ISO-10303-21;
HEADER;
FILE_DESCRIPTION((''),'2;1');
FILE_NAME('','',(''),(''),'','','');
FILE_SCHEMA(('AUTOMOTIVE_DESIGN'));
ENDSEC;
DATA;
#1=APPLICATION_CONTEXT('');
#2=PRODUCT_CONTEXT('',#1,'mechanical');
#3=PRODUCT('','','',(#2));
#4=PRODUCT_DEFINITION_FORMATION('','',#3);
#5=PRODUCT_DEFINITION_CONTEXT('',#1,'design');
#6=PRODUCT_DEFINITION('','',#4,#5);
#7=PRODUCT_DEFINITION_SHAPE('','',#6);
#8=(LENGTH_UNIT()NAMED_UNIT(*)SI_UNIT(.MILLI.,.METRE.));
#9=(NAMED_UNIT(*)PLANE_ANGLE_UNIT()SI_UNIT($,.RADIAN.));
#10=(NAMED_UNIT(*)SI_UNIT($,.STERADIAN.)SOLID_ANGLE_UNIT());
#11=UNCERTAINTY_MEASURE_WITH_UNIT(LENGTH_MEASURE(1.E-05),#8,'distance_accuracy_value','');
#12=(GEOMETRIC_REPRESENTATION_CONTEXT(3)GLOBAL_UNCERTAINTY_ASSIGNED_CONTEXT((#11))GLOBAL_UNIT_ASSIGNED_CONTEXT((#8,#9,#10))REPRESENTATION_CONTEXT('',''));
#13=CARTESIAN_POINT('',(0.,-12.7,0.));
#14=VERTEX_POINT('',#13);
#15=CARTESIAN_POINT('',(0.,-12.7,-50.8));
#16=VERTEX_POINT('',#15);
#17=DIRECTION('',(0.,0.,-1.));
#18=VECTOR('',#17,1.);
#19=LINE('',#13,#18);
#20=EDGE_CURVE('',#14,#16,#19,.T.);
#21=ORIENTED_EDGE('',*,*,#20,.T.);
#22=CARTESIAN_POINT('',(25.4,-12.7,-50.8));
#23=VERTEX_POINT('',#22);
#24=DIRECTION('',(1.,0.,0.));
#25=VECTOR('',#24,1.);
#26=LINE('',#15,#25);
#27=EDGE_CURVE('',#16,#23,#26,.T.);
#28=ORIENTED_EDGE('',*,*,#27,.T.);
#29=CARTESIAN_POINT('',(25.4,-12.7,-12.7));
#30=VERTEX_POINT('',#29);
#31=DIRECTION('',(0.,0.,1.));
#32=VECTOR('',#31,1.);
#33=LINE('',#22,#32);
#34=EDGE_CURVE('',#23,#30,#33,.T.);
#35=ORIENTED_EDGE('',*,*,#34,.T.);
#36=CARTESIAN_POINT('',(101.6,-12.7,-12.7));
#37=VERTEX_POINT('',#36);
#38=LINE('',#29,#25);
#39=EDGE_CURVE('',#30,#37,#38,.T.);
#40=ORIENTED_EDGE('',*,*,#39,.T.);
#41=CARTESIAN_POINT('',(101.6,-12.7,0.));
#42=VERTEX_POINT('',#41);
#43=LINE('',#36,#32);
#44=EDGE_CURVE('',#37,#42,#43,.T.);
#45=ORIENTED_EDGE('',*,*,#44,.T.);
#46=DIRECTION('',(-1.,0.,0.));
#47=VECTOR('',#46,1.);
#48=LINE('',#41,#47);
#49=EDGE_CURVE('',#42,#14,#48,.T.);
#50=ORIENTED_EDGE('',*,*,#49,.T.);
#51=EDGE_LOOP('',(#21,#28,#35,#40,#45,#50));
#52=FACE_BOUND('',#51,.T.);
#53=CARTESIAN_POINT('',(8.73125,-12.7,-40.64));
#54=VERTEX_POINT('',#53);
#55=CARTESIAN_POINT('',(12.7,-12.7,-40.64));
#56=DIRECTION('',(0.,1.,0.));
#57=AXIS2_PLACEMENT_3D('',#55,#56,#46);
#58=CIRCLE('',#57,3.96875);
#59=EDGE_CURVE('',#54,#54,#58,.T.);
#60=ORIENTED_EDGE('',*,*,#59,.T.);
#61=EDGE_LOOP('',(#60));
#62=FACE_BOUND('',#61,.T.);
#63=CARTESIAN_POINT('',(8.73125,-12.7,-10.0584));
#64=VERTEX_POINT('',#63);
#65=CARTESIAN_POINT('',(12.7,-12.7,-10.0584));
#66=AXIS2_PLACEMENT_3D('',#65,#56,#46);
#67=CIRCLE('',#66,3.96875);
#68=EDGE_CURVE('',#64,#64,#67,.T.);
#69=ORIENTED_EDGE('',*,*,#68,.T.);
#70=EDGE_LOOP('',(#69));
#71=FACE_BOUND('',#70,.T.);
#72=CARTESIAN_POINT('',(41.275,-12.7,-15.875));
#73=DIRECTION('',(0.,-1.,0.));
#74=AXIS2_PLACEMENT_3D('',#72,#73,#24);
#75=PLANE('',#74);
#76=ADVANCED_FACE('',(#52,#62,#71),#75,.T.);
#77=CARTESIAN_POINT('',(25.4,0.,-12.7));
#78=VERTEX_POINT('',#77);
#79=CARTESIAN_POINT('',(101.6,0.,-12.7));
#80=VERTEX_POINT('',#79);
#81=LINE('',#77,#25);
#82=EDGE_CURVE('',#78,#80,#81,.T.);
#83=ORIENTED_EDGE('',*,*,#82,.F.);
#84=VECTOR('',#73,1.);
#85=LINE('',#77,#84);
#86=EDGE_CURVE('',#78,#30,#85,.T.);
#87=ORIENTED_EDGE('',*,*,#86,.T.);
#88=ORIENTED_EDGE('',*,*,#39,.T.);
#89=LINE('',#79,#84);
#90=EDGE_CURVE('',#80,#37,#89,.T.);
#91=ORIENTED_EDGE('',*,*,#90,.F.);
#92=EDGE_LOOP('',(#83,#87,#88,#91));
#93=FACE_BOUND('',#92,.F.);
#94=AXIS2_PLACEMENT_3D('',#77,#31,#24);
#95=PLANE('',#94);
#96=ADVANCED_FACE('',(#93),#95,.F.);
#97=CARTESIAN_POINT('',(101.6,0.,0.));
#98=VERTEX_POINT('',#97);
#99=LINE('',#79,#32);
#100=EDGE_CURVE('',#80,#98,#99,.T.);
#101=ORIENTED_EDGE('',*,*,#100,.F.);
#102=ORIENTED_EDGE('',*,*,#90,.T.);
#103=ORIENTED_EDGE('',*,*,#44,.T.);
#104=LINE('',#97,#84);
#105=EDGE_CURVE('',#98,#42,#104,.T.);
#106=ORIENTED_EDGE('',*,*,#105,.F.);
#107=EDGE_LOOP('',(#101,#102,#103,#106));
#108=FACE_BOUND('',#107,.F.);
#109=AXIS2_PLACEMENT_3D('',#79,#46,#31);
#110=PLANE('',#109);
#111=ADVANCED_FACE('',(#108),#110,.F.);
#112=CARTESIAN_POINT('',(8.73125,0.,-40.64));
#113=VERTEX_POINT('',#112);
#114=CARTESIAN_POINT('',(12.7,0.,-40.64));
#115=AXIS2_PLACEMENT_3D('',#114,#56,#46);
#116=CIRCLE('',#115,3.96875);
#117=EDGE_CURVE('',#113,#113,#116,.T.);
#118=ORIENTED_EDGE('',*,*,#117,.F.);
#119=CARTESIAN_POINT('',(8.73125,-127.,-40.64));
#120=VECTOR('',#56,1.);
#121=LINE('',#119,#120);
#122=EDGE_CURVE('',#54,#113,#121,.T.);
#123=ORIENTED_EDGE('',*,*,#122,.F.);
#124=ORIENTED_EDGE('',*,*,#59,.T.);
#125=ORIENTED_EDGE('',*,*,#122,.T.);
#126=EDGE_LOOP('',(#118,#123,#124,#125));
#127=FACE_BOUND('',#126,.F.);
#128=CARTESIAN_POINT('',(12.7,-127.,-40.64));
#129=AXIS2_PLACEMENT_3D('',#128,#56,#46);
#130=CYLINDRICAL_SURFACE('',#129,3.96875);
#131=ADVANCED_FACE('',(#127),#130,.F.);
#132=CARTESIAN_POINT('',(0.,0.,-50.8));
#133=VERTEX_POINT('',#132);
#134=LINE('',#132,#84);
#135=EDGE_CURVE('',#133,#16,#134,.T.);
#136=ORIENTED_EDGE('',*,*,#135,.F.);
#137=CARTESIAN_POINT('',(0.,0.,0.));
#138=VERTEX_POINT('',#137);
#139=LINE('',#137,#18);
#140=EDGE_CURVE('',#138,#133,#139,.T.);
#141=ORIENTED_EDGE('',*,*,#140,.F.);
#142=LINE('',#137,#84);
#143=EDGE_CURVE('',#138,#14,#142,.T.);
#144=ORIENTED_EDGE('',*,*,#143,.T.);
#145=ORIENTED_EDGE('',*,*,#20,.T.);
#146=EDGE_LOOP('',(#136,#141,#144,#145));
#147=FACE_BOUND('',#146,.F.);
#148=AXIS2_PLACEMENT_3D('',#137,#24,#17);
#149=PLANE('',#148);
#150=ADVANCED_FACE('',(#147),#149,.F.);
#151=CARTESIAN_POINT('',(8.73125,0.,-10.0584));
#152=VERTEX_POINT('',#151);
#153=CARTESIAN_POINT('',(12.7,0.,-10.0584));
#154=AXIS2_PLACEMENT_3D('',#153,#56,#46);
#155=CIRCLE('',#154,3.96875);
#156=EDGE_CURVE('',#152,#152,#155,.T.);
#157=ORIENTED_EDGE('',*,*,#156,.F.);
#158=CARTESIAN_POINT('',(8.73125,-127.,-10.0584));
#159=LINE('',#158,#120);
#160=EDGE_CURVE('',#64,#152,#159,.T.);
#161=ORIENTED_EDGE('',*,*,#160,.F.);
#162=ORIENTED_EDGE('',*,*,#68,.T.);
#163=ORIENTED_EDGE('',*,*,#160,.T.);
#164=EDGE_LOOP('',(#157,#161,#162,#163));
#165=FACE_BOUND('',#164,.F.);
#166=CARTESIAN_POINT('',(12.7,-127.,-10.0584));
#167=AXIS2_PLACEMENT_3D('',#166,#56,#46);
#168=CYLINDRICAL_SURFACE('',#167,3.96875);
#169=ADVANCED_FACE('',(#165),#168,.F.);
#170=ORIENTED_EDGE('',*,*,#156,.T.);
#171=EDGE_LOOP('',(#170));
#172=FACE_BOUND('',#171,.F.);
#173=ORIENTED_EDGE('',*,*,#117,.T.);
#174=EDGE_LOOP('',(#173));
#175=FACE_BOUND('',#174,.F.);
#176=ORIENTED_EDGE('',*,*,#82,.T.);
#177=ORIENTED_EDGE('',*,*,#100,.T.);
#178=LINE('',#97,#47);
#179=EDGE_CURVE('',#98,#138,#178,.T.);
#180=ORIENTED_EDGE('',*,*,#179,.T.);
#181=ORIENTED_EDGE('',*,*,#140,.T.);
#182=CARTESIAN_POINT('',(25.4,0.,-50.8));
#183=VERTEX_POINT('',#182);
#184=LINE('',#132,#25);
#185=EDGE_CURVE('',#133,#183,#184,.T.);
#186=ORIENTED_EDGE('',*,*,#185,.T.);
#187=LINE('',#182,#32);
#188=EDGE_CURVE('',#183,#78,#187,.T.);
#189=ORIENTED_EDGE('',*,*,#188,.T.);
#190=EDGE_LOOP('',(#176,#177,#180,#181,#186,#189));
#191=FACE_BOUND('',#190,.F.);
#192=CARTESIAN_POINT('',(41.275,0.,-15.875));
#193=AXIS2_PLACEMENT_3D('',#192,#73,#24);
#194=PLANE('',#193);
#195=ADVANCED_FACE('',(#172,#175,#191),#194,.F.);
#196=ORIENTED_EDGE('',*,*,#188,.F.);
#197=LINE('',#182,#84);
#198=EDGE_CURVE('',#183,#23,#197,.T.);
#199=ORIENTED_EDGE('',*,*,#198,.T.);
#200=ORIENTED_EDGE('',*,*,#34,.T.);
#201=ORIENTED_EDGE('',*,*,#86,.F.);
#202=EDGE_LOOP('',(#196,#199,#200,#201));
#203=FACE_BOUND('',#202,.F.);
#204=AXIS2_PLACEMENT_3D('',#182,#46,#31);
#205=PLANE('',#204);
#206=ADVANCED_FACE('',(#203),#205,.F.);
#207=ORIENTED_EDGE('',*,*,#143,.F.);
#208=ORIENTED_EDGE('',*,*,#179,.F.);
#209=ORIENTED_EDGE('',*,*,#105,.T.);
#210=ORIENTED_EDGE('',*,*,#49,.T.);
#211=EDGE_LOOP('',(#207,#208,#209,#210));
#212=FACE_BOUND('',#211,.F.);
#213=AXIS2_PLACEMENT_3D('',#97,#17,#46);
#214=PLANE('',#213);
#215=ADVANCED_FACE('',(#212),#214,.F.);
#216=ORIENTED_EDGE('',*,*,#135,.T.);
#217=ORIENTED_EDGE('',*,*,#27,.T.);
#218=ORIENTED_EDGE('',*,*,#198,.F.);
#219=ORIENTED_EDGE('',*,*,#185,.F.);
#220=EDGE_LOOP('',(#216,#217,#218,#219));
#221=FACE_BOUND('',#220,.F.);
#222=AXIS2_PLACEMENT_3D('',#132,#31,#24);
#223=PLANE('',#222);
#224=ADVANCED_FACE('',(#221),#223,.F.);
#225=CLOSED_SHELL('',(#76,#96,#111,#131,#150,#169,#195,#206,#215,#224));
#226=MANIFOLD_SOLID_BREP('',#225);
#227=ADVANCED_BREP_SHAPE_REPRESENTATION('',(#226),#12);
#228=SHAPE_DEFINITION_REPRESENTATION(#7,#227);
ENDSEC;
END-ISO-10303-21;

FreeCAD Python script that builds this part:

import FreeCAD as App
import Part
import Sketcher
from FreeCAD import Vector
Q = App.Units.Quantity


def add_polygon(sketch, points):
    """Adds a closed chain of lines whose ends are joined by coincident constraints."""
    first, n = sketch.GeometryCount, len(points)
    for a, b in zip(points, points[1:] + points[:1]):
        sketch.addGeometry(Part.LineSegment(App.Vector(*a, 0), App.Vector(*b, 0)), False)
    for i in range(n):
        sketch.addConstraint(Sketcher.Constraint("Coincident", first + i, 2, first + (i + 1) % n, 1))

doc = App.newDocument("Part")
params = doc.addObject("Spreadsheet::Sheet", "Params")
for row, (alias, value) in enumerate([
    ("sketch1_width", "4 in"),
    ("sketch1_width2", "1 in"),
    ("sketch1_height", "2 in"),
    ("sketch1_height2", "1.5 in"),
    ("pad1_length", "0.5 in"),
    ("sketch2_diameter", "0.3125 in"),
    ("hole_diameter", "0.3125 in"),
], start=1):
    params.set(f"A{row}", alias)
    params.set(f"B{row}", "=" + value)
    params.setAlias(f"B{row}", alias)

body = doc.addObject("PartDesign::Body", "Body")

# Sketch on XZ plane
sketch1 = doc.addObject("Sketcher::SketchObject", "Sketch")
body.addObject(sketch1)
sketch1.AttachmentSupport = (doc.XZ_Plane, [""])
sketch1.MapMode = "FlatFace"
add_polygon(sketch1, [(102, 0), (0, 0), (0, -51), (25, -51), (25, -13), (102, -13)])  # lines 0-5
sketch1.addConstraint([
    Sketcher.Constraint("Horizontal", 0),
    Sketcher.Constraint("Vertical", 1),
    Sketcher.Constraint("Horizontal", 2),
    Sketcher.Constraint("Vertical", 3),
    Sketcher.Constraint("Horizontal", 4),
    Sketcher.Constraint("Vertical", 5),
    Sketcher.Constraint("Coincident", 0, 2, -1, 1),
    Sketcher.Constraint("DistanceX", 0, 2, 0, 1, Q("4 in")),
    Sketcher.Constraint("DistanceX", 2, 1, 2, 2, Q("1 in")),
    Sketcher.Constraint("DistanceY", 1, 2, 1, 1, Q("2 in")),
    Sketcher.Constraint("DistanceY", 3, 1, 3, 2, Q("1.5 in")),
])
sketch1.setExpression("Constraints[13]", "Params.sketch1_width")
sketch1.setExpression("Constraints[14]", "Params.sketch1_width2")
sketch1.setExpression("Constraints[15]", "Params.sketch1_height")
sketch1.setExpression("Constraints[16]", "Params.sketch1_height2")
pad1 = doc.addObject("PartDesign::Pad", "Pad")
body.addObject(pad1)
pad1.Profile = sketch1
pad1.setExpression("Length", "Params.pad1_length")

# Sketch on XZ plane
sketch2 = doc.addObject("Sketcher::SketchObject", "Sketch001")
body.addObject(sketch2)
sketch2.AttachmentSupport = (doc.XZ_Plane, [""])
sketch2.MapMode = "FlatFace"
sketch2.AttachmentOffset = App.Placement(Vector(0, 0, 0.5 * 25.4), App.Rotation())
sketch2.addGeometry([
    Part.Circle(Vector(12.7, -10.1, 0), Vector(0, 0, 1), 4),
    Part.Circle(Vector(12.7, -40.6, 0), Vector(0, 0, 1), 4),
], False)
sketch2.addConstraint([
    Sketcher.Constraint("Equal", 0, 1),
    Sketcher.Constraint("Vertical", 0, 3, 1, 3),
    Sketcher.Constraint("Diameter", 0, Q("0.3125 in")),
    Sketcher.Constraint("DistanceX", -1, 1, 0, 3, Q("0.5 in")),
    Sketcher.Constraint("DistanceY", 1, 3, -1, 1, Q("1.6 in")),
    Sketcher.Constraint("DistanceY", 0, 3, -1, 1, Q("0.396 in")),
])
sketch2.setExpression("Constraints[2]", "Params.sketch2_diameter")
doc.recompute()
hole = doc.addObject("PartDesign::Hole", "Hole")
body.addObject(hole)
hole.Profile = sketch2
hole.ThreadType = "None"
hole.setExpression("Diameter", "Params.hole_diameter")
hole.DepthType = "ThroughAll"

doc.recompute()
